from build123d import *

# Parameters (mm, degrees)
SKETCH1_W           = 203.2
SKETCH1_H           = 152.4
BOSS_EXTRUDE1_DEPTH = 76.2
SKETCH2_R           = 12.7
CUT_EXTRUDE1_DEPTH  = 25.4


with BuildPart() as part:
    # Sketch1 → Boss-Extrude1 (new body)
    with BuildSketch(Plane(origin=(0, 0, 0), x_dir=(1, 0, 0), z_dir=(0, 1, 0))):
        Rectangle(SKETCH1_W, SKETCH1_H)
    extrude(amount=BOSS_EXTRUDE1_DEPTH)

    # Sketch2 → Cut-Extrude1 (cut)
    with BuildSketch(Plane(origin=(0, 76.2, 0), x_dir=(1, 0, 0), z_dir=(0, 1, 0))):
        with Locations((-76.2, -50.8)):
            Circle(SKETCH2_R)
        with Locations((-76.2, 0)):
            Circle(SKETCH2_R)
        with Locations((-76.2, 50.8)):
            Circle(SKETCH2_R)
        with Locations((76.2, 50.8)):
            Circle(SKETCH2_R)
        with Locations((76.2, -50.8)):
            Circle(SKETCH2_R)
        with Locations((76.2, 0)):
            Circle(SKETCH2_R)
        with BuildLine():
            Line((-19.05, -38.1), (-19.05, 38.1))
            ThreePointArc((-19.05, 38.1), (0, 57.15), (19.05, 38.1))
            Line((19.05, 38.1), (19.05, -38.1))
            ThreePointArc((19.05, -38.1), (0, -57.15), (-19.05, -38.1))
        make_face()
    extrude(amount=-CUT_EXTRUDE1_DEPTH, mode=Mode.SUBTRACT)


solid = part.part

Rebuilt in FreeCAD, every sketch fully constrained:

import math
import FreeCAD as App
import Part
import Sketcher

V = App.Vector
Q = App.Units.Quantity

doc = App.newDocument("Part")
body = doc.addObject("PartDesign::Body", "Body")

sketch1 = doc.addObject("Sketcher::SketchObject", "Sketch")
body.addObject(sketch1)
sketch1.AttachmentSupport = (doc.XZ_Plane, [""])
sketch1.MapMode = "FlatFace"
sketch1.addGeometry(Part.LineSegment(V(-102, -76, 0), V(-102, 76, 0)), False)
sketch1.addGeometry(Part.LineSegment(V(-102, 76, 0), V(102, 76, 0)), False)
sketch1.addGeometry(Part.LineSegment(V(102, 76, 0), V(102, -76, 0)), False)
sketch1.addGeometry(Part.LineSegment(V(102, -76, 0), V(-102, -76, 0)), False)
sketch1.addConstraint(Sketcher.Constraint("Coincident", 0, 2, 1, 1))
sketch1.addConstraint(Sketcher.Constraint("Coincident", 1, 2, 2, 1))
sketch1.addConstraint(Sketcher.Constraint("Coincident", 2, 2, 3, 1))
sketch1.addConstraint(Sketcher.Constraint("Coincident", 3, 2, 0, 1))
sketch1.addConstraint(Sketcher.Constraint("Vertical", 0))
sketch1.addConstraint(Sketcher.Constraint("Horizontal", 1))
sketch1.addConstraint(Sketcher.Constraint("Vertical", 2))
sketch1.addConstraint(Sketcher.Constraint("Horizontal", 3))
sketch1.addConstraint(Sketcher.Constraint("Symmetric", 0, 2, 2, 2, -1, 1))
sketch1.addConstraint(Sketcher.Constraint("DistanceX", 1, 1, 1, 2, Q("8 in")))
sketch1.addConstraint(Sketcher.Constraint("DistanceY", 0, 1, 0, 2, Q("6 in")))
pad1 = doc.addObject("PartDesign::Pad", "Pad")
body.addObject(pad1)
pad1.Profile = sketch1
pad1.Length = Q("3 in")
pad1.Reversed = True

sketch2 = doc.addObject("Sketcher::SketchObject", "Sketch001")
body.addObject(sketch2)
sketch2.AttachmentSupport = (doc.XZ_Plane, [""])
sketch2.MapMode = "FlatFace"
sketch2.AttachmentOffset = App.Placement(V(0, 0, -3 * 25.4), App.Rotation())
sketch2.addGeometry(Part.Circle(V(-76, 51, 0), V(0, 0, 1), 13), False)
sketch2.addGeometry(Part.Circle(V(-76, 0, 0), V(0, 0, 1), 13), False)
sketch2.addGeometry(Part.Circle(V(-76, -51, 0), V(0, 0, 1), 13), False)
sketch2.addGeometry(Part.Circle(V(76, -51, 0), V(0, 0, 1), 13), False)
sketch2.addGeometry(Part.Circle(V(76, 51, 0), V(0, 0, 1), 13), False)
sketch2.addGeometry(Part.Circle(V(76, 0, 0), V(0, 0, 1), 13), False)
sketch2.addGeometry(Part.LineSegment(V(-19, -38, 0), V(-19, 38, 0)), False)
sketch2.addGeometry(Part.ArcOfCircle(Part.Circle(V(0, 38, 0), V(0, 0, 1), 19), math.radians(0), math.radians(180)), False)
sketch2.addGeometry(Part.LineSegment(V(19, 38, 0), V(19, -38, 0)), False)
sketch2.addGeometry(Part.ArcOfCircle(Part.Circle(V(0, -38, 0), V(0, 0, 1), 19), math.radians(180), math.radians(360)), False)
sketch2.addConstraint(Sketcher.Constraint("Tangent", 6, 2, 7, 2))
sketch2.addConstraint(Sketcher.Constraint("Tangent", 7, 1, 8, 1))
sketch2.addConstraint(Sketcher.Constraint("Tangent", 8, 2, 9, 2))
sketch2.addConstraint(Sketcher.Constraint("Tangent", 9, 1, 6, 1))
sketch2.addConstraint(Sketcher.Constraint("Vertical", 6))
sketch2.addConstraint(Sketcher.Constraint("Vertical", 8))
sketch2.addConstraint(Sketcher.Constraint("Equal", 0, 1))
sketch2.addConstraint(Sketcher.Constraint("Equal", 1, 2))
sketch2.addConstraint(Sketcher.Constraint("Equal", 2, 3))
sketch2.addConstraint(Sketcher.Constraint("Equal", 3, 4))
sketch2.addConstraint(Sketcher.Constraint("Equal", 4, 5))
sketch2.addConstraint(Sketcher.Constraint("Symmetric", 0, 3, 3, 3, -1, 1))
sketch2.addConstraint(Sketcher.Constraint("Symmetric", 2, 3, 4, 3, -1, 1))
sketch2.addConstraint(Sketcher.Constraint("Symmetric", 1, 3, 5, 3, -1, 1))
sketch2.addConstraint(Sketcher.Constraint("Symmetric", 7, 3, 9, 3, -1, 1))
sketch2.addConstraint(Sketcher.Constraint("Symmetric", 2, 3, 3, 3, -2))
sketch2.addConstraint(Sketcher.Constraint("PointOnObject", 1, 3, -1))
sketch2.addConstraint(Sketcher.Constraint("Vertical", 0, 3, 1, 3))
sketch2.addConstraint(Sketcher.Constraint("Diameter", 0, Q("1 in")))
sketch2.addConstraint(Sketcher.Constraint("DistanceY", 6, 1, 6, 2, Q("3 in")))
sketch2.addConstraint(Sketcher.Constraint("Radius", 7, Q("0.75 in")))
sketch2.addConstraint(Sketcher.Constraint("DistanceX", 0, 3, -1, 1, Q("3 in")))
sketch2.addConstraint(Sketcher.Constraint("DistanceY", -1, 1, 0, 3, Q("2 in")))
pocket1 = doc.addObject("PartDesign::Pocket", "Pocket")
body.addObject(pocket1)
pocket1.Profile = sketch2
pocket1.Length = Q("1 in")
pocket1.Reversed = True

doc.recompute()
